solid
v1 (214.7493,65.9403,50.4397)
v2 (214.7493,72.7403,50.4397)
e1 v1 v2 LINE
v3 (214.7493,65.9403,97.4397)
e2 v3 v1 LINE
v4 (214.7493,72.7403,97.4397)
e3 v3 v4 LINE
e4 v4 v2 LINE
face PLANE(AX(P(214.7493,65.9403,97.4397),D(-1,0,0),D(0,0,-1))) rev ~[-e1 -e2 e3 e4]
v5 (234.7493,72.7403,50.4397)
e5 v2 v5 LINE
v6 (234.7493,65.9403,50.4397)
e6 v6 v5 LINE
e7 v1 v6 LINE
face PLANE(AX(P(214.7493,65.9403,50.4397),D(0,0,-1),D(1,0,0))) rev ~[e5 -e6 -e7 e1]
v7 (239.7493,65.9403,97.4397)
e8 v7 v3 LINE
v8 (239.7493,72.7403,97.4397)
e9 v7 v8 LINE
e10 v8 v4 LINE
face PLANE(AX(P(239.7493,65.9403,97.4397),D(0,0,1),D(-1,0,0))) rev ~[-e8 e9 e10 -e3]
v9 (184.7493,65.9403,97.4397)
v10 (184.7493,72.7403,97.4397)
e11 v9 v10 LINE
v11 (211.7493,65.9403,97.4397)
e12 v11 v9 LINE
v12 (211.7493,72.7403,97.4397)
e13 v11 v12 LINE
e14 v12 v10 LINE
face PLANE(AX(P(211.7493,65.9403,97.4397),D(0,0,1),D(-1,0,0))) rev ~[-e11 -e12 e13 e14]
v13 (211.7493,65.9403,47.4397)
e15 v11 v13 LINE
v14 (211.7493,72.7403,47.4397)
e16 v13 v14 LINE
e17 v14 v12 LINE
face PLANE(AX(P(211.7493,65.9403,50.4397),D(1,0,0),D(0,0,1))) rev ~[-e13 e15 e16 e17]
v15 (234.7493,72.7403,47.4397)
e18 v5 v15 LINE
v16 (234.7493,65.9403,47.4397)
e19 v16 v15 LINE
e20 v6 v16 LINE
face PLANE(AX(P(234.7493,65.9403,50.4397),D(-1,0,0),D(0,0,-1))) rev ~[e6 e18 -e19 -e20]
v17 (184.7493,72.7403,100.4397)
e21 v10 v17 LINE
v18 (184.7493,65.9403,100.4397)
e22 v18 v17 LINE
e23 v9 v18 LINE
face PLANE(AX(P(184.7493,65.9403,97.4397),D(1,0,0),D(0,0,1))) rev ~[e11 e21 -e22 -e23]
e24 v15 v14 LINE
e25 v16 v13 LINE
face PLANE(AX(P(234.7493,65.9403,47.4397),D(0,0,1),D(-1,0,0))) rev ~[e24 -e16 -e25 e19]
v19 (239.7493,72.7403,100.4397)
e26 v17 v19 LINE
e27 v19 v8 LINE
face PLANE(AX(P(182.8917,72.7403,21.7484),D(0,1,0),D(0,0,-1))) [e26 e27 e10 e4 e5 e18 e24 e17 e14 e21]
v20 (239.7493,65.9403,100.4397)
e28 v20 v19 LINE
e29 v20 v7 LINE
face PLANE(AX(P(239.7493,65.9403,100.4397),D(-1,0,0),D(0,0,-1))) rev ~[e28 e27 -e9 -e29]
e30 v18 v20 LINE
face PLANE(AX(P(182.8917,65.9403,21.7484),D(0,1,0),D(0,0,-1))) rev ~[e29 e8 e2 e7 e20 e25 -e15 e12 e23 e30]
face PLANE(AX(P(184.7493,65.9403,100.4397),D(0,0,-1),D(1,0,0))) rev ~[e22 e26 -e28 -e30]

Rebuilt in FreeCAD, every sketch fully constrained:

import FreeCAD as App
import Part
import Sketcher

V = App.Vector

doc = App.newDocument("Part")
params = doc.addObject("Spreadsheet::Sheet", "Params")
for row, (alias, value) in enumerate([
    ("sketch1_width", "55 mm"),
    ("sketch1_width2", "25 mm"),
    ("sketch1_width3", "23 mm"),
    ("sketch1_height", "3 mm"),
    ("sketch1_height2", "47 mm"),
    ("pad1_length", "6.8 mm"),
], start=1):
    params.set(f"A{row}", alias)
    params.set(f"B{row}", "=" + value)
    params.setAlias(f"B{row}", alias)

body = doc.addObject("PartDesign::Body", "Body")

sketch1 = body.newObject("Sketcher::SketchObject", "Sketch")
sketch1.AttachmentSupport = (doc.getObject("XZ_Plane"), [""])
sketch1.MapMode = "FlatFace"
sketch1.AttachmentOffset = App.Placement(V(0, 0, -65.9403), App.Rotation())
sketch1.addGeometry([
    Part.LineSegment(V(184.7, 97.4, 0), V(184.7, 100.4, 0)),
    Part.LineSegment(V(184.7, 100.4, 0), V(239.7, 100.4, 0)),
    Part.LineSegment(V(239.7, 100.4, 0), V(239.7, 97.4, 0)),
    Part.LineSegment(V(239.7, 97.4, 0), V(214.7, 97.4, 0)),
    Part.LineSegment(V(214.7, 97.4, 0), V(214.7, 50.4, 0)),
    Part.LineSegment(V(214.7, 50.4, 0), V(234.7, 50.4, 0)),
    Part.LineSegment(V(234.7, 50.4, 0), V(234.7, 47.4, 0)),
    Part.LineSegment(V(234.7, 47.4, 0), V(211.7, 47.4, 0)),
    Part.LineSegment(V(211.7, 47.4, 0), V(211.7, 97.4, 0)),
    Part.LineSegment(V(211.7, 97.4, 0), V(184.7, 97.4, 0)),
], False)
sketch1.addConstraint([
    Sketcher.Constraint("Coincident", 0, 2, 1, 1),
    Sketcher.Constraint("Coincident", 1, 2, 2, 1),
    Sketcher.Constraint("Coincident", 2, 2, 3, 1),
    Sketcher.Constraint("Coincident", 3, 2, 4, 1),
    Sketcher.Constraint("Coincident", 4, 2, 5, 1),
    Sketcher.Constraint("Coincident", 5, 2, 6, 1),
    Sketcher.Constraint("Coincident", 6, 2, 7, 1),
    Sketcher.Constraint("Coincident", 7, 2, 8, 1),
    Sketcher.Constraint("Coincident", 8, 2, 9, 1),
    Sketcher.Constraint("Coincident", 9, 2, 0, 1),
    Sketcher.Constraint("Vertical", 0),
    Sketcher.Constraint("Horizontal", 1),
    Sketcher.Constraint("Vertical", 2),
    Sketcher.Constraint("Horizontal", 3),
    Sketcher.Constraint("Vertical", 4),
    Sketcher.Constraint("Horizontal", 5),
    Sketcher.Constraint("Vertical", 6),
    Sketcher.Constraint("Horizontal", 7),
    Sketcher.Constraint("Vertical", 8),
    Sketcher.Constraint("Horizontal", 9),
    Sketcher.Constraint("Horizontal", 3, 2, 8, 2),
    Sketcher.Constraint("Equal", 2, 6),
    Sketcher.Constraint("DistanceX", 1, 1, 1, 2, 55.0),
    Sketcher.Constraint("DistanceX", 3, 2, 3, 1, 25.0),
    Sketcher.Constraint("DistanceX", 7, 2, 7, 1, 23.0),
    Sketcher.Constraint("DistanceY", 0, 1, 0, 2, 3.0),
    Sketcher.Constraint("DistanceY", 4, 2, 4, 1, 47.0),
    Sketcher.Constraint("DistanceX", 7, 2, 4, 2, 3.0),
    Sketcher.Constraint("DistanceX", -1, 1, 0, 2, 184.7493),
    Sketcher.Constraint("DistanceY", -1, 1, 0, 2, 100.4397),
])
sketch1.setExpression("Constraints[22]", "Params.sketch1_width")
sketch1.setExpression("Constraints[23]", "Params.sketch1_width2")
sketch1.setExpression("Constraints[24]", "Params.sketch1_width3")
sketch1.setExpression("Constraints[25]", "Params.sketch1_height")
sketch1.setExpression("Constraints[26]", "Params.sketch1_height2")
pad1 = body.newObject("PartDesign::Pad", "Pad")
pad1.Profile = sketch1
pad1.setExpression("Length", "Params.pad1_length")
pad1.Reversed = True

doc.recompute()
